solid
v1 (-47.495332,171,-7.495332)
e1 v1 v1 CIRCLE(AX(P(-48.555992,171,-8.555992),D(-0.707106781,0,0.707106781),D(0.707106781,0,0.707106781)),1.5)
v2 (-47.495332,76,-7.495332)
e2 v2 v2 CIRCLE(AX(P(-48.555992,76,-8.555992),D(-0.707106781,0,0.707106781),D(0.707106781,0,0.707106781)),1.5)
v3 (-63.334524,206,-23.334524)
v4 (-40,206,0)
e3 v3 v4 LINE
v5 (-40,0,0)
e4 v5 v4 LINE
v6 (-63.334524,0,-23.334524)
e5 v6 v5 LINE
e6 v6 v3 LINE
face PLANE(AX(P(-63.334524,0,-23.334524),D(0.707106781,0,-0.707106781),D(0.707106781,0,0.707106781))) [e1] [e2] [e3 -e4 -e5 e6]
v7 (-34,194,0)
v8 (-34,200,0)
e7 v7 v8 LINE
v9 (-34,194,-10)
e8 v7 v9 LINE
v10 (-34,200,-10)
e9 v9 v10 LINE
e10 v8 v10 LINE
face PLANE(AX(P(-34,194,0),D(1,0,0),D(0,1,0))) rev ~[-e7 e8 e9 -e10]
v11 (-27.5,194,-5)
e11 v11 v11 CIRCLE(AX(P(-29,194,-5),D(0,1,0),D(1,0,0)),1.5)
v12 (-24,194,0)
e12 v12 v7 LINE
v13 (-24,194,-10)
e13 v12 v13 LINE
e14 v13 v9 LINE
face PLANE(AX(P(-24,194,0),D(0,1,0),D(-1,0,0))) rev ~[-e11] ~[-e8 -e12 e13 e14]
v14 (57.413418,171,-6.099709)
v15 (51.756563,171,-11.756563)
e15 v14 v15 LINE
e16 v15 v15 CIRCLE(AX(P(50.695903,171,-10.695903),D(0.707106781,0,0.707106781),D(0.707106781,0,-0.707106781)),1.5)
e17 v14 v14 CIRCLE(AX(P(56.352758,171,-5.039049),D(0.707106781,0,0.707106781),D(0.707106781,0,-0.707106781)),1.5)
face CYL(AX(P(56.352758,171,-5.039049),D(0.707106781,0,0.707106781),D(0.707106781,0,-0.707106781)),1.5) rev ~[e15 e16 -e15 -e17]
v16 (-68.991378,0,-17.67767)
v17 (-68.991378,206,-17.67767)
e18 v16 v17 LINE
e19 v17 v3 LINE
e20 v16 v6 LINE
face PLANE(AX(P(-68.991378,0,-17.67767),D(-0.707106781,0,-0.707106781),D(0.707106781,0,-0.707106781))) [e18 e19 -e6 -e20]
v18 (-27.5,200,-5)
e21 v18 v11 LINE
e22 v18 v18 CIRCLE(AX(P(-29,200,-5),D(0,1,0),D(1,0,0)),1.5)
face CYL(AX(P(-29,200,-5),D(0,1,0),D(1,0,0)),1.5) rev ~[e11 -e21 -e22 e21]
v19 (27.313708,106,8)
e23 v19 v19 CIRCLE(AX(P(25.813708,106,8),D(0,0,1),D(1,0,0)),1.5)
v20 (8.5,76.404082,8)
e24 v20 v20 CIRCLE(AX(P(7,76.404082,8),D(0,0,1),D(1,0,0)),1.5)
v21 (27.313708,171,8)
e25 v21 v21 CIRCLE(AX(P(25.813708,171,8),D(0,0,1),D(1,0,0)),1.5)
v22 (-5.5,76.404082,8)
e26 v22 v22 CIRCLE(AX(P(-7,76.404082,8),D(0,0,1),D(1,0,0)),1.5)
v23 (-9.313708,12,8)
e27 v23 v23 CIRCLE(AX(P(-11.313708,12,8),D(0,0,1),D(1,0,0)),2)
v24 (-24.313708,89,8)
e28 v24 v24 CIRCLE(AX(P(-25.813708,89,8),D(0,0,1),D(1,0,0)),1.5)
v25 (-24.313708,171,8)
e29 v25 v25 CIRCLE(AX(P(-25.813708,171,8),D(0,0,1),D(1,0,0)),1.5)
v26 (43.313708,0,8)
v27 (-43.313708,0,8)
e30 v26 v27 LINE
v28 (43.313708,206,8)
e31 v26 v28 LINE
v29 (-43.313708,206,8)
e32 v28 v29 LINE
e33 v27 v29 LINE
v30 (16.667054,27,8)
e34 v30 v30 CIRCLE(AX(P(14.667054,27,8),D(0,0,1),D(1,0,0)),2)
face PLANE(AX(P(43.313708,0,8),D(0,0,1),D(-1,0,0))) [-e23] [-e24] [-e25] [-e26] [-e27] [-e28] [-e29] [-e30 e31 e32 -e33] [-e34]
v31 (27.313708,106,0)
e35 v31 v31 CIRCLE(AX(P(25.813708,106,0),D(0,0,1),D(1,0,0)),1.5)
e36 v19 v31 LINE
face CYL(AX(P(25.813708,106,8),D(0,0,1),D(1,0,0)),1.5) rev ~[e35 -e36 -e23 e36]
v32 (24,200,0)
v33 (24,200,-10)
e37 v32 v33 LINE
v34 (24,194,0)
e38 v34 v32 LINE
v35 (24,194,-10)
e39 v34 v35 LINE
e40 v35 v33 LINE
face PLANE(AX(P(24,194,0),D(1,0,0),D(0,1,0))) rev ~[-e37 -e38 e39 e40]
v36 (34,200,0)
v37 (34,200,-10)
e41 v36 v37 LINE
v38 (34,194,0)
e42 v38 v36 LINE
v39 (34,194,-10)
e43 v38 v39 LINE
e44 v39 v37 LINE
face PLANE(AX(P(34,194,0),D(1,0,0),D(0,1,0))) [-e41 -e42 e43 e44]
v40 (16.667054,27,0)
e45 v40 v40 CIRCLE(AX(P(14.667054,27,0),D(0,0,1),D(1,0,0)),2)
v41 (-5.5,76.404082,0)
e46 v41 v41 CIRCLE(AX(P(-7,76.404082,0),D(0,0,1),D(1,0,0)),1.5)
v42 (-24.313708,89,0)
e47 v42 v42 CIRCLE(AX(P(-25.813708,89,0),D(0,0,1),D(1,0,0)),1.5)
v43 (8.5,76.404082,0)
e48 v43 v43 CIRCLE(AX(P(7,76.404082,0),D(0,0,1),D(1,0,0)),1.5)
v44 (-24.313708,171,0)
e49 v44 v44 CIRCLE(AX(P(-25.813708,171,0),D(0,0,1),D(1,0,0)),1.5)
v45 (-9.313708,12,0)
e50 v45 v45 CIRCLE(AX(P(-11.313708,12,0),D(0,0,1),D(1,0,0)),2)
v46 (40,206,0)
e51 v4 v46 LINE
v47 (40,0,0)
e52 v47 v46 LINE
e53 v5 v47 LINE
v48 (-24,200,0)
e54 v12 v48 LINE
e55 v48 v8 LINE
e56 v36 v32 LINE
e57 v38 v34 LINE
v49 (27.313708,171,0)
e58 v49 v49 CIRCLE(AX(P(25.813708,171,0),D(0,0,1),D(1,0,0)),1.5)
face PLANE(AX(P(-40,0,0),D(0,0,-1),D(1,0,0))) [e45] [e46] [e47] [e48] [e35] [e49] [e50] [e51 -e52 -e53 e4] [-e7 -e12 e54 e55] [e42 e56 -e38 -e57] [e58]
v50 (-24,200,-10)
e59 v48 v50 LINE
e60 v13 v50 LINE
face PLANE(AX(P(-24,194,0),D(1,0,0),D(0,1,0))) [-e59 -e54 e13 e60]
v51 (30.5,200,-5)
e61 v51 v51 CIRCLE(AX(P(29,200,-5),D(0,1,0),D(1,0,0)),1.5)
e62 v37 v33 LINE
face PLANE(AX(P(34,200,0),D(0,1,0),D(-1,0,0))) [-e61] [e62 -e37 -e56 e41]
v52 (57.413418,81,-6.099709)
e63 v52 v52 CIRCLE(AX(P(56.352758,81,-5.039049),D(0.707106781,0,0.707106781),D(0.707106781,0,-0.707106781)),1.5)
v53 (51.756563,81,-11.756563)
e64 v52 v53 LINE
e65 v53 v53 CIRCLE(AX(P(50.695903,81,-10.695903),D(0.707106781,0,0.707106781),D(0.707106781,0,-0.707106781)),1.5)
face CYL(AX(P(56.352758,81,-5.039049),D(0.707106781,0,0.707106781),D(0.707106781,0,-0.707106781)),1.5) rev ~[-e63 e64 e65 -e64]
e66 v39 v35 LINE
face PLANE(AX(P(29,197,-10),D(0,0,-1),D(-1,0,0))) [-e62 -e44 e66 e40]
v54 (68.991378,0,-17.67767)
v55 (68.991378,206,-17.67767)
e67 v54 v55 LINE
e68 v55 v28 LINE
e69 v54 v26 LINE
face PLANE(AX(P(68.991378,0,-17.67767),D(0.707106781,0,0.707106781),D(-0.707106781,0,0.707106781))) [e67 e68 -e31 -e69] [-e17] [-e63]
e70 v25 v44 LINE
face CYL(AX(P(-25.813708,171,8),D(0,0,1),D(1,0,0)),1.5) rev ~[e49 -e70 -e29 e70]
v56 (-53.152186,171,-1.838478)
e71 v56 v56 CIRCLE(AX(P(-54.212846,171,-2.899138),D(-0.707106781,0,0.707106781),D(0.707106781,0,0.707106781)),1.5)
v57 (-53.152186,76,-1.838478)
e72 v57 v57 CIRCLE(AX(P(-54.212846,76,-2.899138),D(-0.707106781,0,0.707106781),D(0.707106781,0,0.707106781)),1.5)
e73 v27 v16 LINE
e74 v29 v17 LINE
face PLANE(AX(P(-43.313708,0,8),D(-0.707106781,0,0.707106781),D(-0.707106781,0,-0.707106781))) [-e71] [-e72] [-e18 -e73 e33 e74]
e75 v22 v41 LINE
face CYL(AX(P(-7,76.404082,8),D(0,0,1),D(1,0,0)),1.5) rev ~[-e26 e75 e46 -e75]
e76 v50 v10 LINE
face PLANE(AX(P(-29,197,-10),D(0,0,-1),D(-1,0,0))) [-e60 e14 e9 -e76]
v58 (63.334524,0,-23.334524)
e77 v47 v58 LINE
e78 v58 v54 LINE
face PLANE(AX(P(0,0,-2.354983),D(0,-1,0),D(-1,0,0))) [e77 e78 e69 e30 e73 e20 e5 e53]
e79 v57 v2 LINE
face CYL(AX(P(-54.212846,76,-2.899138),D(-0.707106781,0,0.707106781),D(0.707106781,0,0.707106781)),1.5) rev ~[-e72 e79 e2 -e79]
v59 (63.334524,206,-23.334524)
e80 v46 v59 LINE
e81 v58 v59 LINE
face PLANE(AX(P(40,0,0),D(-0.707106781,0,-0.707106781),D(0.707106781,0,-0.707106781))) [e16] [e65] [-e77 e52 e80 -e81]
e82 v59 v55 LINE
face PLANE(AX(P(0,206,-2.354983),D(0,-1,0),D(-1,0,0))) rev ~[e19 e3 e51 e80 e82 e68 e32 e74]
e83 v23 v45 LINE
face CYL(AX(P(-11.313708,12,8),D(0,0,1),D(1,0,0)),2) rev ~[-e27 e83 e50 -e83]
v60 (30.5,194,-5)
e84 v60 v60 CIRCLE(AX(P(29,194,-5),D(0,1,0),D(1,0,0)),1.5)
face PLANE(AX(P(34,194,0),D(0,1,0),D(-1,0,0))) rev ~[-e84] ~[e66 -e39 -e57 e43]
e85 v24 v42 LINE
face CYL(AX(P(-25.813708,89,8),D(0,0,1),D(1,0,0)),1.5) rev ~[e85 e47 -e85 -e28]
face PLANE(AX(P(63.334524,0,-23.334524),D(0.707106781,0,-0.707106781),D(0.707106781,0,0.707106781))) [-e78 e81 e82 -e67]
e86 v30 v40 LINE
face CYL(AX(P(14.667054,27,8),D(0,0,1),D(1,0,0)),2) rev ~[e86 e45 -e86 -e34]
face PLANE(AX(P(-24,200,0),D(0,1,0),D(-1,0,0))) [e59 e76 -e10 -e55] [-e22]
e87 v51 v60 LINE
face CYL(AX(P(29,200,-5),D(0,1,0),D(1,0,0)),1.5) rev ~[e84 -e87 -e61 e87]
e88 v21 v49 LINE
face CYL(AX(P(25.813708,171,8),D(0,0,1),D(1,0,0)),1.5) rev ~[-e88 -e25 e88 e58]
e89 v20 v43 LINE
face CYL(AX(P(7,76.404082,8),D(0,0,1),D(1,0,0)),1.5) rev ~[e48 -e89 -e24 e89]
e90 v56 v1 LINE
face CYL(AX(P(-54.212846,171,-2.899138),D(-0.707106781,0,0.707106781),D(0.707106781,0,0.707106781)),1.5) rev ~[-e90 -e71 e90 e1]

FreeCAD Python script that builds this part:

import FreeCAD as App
import Part
import Sketcher

V = App.Vector

doc = App.newDocument("Part")
body = doc.addObject("PartDesign::Body", "Body")

sketch1 = body.newObject("Sketcher::SketchObject", "Sketch")
sketch1.AttachmentSupport = (doc.getObject("XZ_Plane"), [""])
sketch1.MapMode = "FlatFace"
sketch1.addGeometry([
    Part.LineSegment(V(40, 0, 0), V(-40, 0, 0)),
    Part.LineSegment(V(-40, 0, 0), V(-63, -23, 0)),
    Part.LineSegment(V(-63, -23, 0), V(-69, -18, 0)),
    Part.LineSegment(V(-69, -18, 0), V(-43, 8, 0)),
    Part.LineSegment(V(-43, 8, 0), V(43, 8, 0)),
    Part.LineSegment(V(43, 8, 0), V(69, -18, 0)),
    Part.LineSegment(V(69, -18, 0), V(63, -23, 0)),
    Part.LineSegment(V(63, -23, 0), V(40, 0, 0)),
], False)
sketch1.addConstraint([
    Sketcher.Constraint("Coincident", 0, 2, 1, 1),
    Sketcher.Constraint("Coincident", 1, 2, 2, 1),
    Sketcher.Constraint("Coincident", 2, 2, 3, 1),
    Sketcher.Constraint("Coincident", 3, 2, 4, 1),
    Sketcher.Constraint("Coincident", 4, 2, 5, 1),
    Sketcher.Constraint("Coincident", 5, 2, 6, 1),
    Sketcher.Constraint("Coincident", 6, 2, 7, 1),
    Sketcher.Constraint("Coincident", 7, 2, 0, 1),
    Sketcher.Constraint("Horizontal", 0),
    Sketcher.Constraint("Horizontal", 4),
    Sketcher.Constraint("Symmetric", 0, 2, 7, 2, -1, 1),
    Sketcher.Constraint("Symmetric", 2, 2, 5, 2, -2),
    Sketcher.Constraint("Symmetric", 1, 2, 6, 2, -2),
    Sketcher.Constraint("Perpendicular", 1, 2),
    Sketcher.Constraint("Perpendicular", 2, 3),
    Sketcher.Constraint("Perpendicular", 3, 5),
    Sketcher.Constraint("Perpendicular", 5, 6),
    Sketcher.Constraint("DistanceX", 0, 2, 0, 1, 80.0),
    Sketcher.Constraint("Distance", 1, 33.0),
    Sketcher.Constraint("Distance", 2, 8.0),
    Sketcher.Constraint("DistanceY", -1, 1, 3, 2, 8.0),
])
pad1 = body.newObject("PartDesign::Pad", "Pad")
pad1.Profile = sketch1
pad1.Length = 206
pad1.Reversed = True

sketch2 = body.newObject("Sketcher::SketchObject", "Sketch001")
sketch2.AttachmentSupport = (doc.getObject("XY_Plane"), [""])
sketch2.MapMode = "FlatFace"
sketch2.addGeometry([
    Part.LineSegment(V(34, 200, 0), V(34, 194, 0)),
    Part.LineSegment(V(34, 194, 0), V(24, 194, 0)),
    Part.LineSegment(V(24, 194, 0), V(24, 200, 0)),
    Part.LineSegment(V(24, 200, 0), V(34, 200, 0)),
    Part.LineSegment(V(-24, 200, 0), V(-24, 194, 0)),
    Part.LineSegment(V(-24, 194, 0), V(-34, 194, 0)),
    Part.LineSegment(V(-34, 194, 0), V(-34, 200, 0)),
    Part.LineSegment(V(-34, 200, 0), V(-24, 200, 0)),
], False)
sketch2.addConstraint([
    Sketcher.Constraint("Coincident", 0, 2, 1, 1),
    Sketcher.Constraint("Coincident", 1, 2, 2, 1),
    Sketcher.Constraint("Coincident", 2, 2, 3, 1),
    Sketcher.Constraint("Coincident", 3, 2, 0, 1),
    Sketcher.Constraint("Coincident", 4, 2, 5, 1),
    Sketcher.Constraint("Coincident", 5, 2, 6, 1),
    Sketcher.Constraint("Coincident", 6, 2, 7, 1),
    Sketcher.Constraint("Coincident", 7, 2, 4, 1),
    Sketcher.Constraint("Vertical", 0),
    Sketcher.Constraint("Horizontal", 1),
    Sketcher.Constraint("Vertical", 2),
    Sketcher.Constraint("Horizontal", 3),
    Sketcher.Constraint("Vertical", 4),
    Sketcher.Constraint("Horizontal", 5),
    Sketcher.Constraint("Vertical", 6),
    Sketcher.Constraint("Horizontal", 7),
    Sketcher.Constraint("Symmetric", 1, 2, 4, 2, -2),
    Sketcher.Constraint("Symmetric", 3, 2, 6, 2, -2),
    Sketcher.Constraint("DistanceX", 1, 2, 1, 1, 10.0),
    Sketcher.Constraint("DistanceY", 0, 2, 0, 1, 6.0),
    Sketcher.Constraint("DistanceX", -1, 1, 0, 2, 34.0),
    Sketcher.Constraint("DistanceY", -1, 1, 0, 2, 194.0),
])
pad2 = body.newObject("PartDesign::Pad", "Pad001")
pad2.Profile = sketch2
pad2.Length = 10
pad2.Reversed = True

sketch3 = body.newObject("Sketcher::SketchObject", "Sketch002")
sketch3.AttachmentSupport = (doc.getObject("XZ_Plane"), [""])
sketch3.MapMode = "FlatFace"
sketch3.AttachmentOffset = App.Placement(V(0, 0, -200), App.Rotation())
sketch3.addGeometry(Part.Circle(V(-29, -5, 0), V(0, 0, 1), 1.5), False)
sketch3.addConstraint([
    Sketcher.Constraint("Diameter", 0, 3.0),
    Sketcher.Constraint("DistanceX", 0, 3, -1, 1, 29.0),
    Sketcher.Constraint("DistanceY", 0, 3, -1, 1, 5.0),
])
pocket1 = body.newObject("PartDesign::Pocket", "Pocket")
pocket1.Profile = sketch3
pocket1.Type = "UpToFirst"
pocket1.Reversed = True

sketch4 = body.newObject("Sketcher::SketchObject", "Sketch003")
sketch4.AttachmentSupport = (doc.getObject("XZ_Plane"), [""])
sketch4.MapMode = "FlatFace"
sketch4.AttachmentOffset = App.Placement(V(0, 0, -200), App.Rotation())
sketch4.addGeometry(Part.Circle(V(29, -5, 0), V(0, 0, 1), 1.5), False)
sketch4.addConstraint([
    Sketcher.Constraint("Diameter", 0, 3.0),
    Sketcher.Constraint("DistanceX", -1, 1, 0, 3, 29.0),
    Sketcher.Constraint("DistanceY", 0, 3, -1, 1, 5.0),
])
pocket2 = body.newObject("PartDesign::Pocket", "Pocket001")
pocket2.Profile = sketch4
pocket2.Type = "UpToFirst"
pocket2.Reversed = True

sketch5 = body.newObject("Sketcher::SketchObject", "Sketch004")
sketch5.AttachmentSupport = (doc.getObject("XY_Plane"), [""])
sketch5.MapMode = "FlatFace"
sketch5.AttachmentOffset = App.Placement(V(0, 0, 8), App.Rotation())
sketch5.addGeometry(Part.Circle(V(-11.3, 12, 0), V(0, 0, 1), 2), False)
sketch5.addConstraint([
    Sketcher.Constraint("Diameter", 0, 4.0),
    Sketcher.Constraint("DistanceY", -1, 1, 0, 3, 12.0),
    Sketcher.Constraint("DistanceX", 0, 3, -1, 1, 11.313708),
])
pocket3 = body.newObject("PartDesign::Pocket", "Pocket002")
pocket3.Profile = sketch5
pocket3.Type = "UpToFirst"

sketch6 = body.newObject("Sketcher::SketchObject", "Sketch005")
sketch6.AttachmentSupport = (doc.getObject("XY_Plane"), [""])
sketch6.MapMode = "FlatFace"
sketch6.AttachmentOffset = App.Placement(V(0, 0, 8), App.Rotation())
sketch6.addGeometry(Part.Circle(V(14.7, 27, 0), V(0, 0, 1), 2), False)
sketch6.addConstraint([
    Sketcher.Constraint("Diameter", 0, 4.0),
    Sketcher.Constraint("DistanceY", -1, 1, 0, 3, 27.0),
    Sketcher.Constraint("DistanceX", -1, 1, 0, 3, 14.667054),
])
pocket4 = body.newObject("PartDesign::Pocket", "Pocket003")
pocket4.Profile = sketch6
pocket4.Type = "UpToFirst"

sketch7 = body.newObject("Sketcher::SketchObject", "Sketch006")
sketch7.AttachmentSupport = (doc.getObject("XY_Plane"), [""])
sketch7.MapMode = "FlatFace"
sketch7.AttachmentOffset = App.Placement(V(0, 0, 8), App.Rotation())
sketch7.addGeometry(Part.Circle(V(7, 76.4, 0), V(0, 0, 1), 1.5), False)
sketch7.addConstraint([
    Sketcher.Constraint("Diameter", 0, 3.0),
    Sketcher.Constraint("DistanceX", -1, 1, 0, 3, 7.0),
    Sketcher.Constraint("DistanceY", -1, 1, 0, 3, 76.404082),
])
pocket5 = body.newObject("PartDesign::Pocket", "Pocket004")
pocket5.Profile = sketch7
pocket5.Type = "UpToFirst"

sketch8 = body.newObject("Sketcher::SketchObject", "Sketch007")
sketch8.AttachmentSupport = (doc.getObject("XY_Plane"), [""])
sketch8.MapMode = "FlatFace"
sketch8.AttachmentOffset = App.Placement(V(0, 0, 8), App.Rotation())
sketch8.addGeometry(Part.Circle(V(-7, 76.4, 0), V(0, 0, 1), 1.5), False)
sketch8.addConstraint([
    Sketcher.Constraint("Diameter", 0, 3.0),
    Sketcher.Constraint("DistanceX", 0, 3, -1, 1, 7.0),
    Sketcher.Constraint("DistanceY", -1, 1, 0, 3, 76.404082),
])
pocket6 = body.newObject("PartDesign::Pocket", "Pocket005")
pocket6.Profile = sketch8
pocket6.Type = "UpToFirst"

sketch9 = body.newObject("Sketcher::SketchObject", "Sketch008")
sketch9.AttachmentSupport = (doc.getObject("XY_Plane"), [""])
sketch9.MapMode = "FlatFace"
sketch9.AttachmentOffset = App.Placement(V(0, 0, 8), App.Rotation())
sketch9.addGeometry(Part.Circle(V(25.8, 171, 0), V(0, 0, 1), 1.5), False)
sketch9.addConstraint([
    Sketcher.Constraint("Diameter", 0, 3.0),
    Sketcher.Constraint("DistanceY", -1, 1, 0, 3, 171.0),
    Sketcher.Constraint("DistanceX", -1, 1, 0, 3, 25.813708),
])
pocket7 = body.newObject("PartDesign::Pocket", "Pocket006")
pocket7.Profile = sketch9
pocket7.Type = "UpToFirst"

sketch10 = body.newObject("Sketcher::SketchObject", "Sketch009")
sketch10.AttachmentSupport = (doc.getObject("XY_Plane"), [""])
sketch10.MapMode = "FlatFace"
sketch10.AttachmentOffset = App.Placement(V(0, 0, 8), App.Rotation())
sketch10.addGeometry(Part.Circle(V(-25.8, 171, 0), V(0, 0, 1), 1.5), False)
sketch10.addConstraint([
    Sketcher.Constraint("Diameter", 0, 3.0),
    Sketcher.Constraint("DistanceY", -1, 1, 0, 3, 171.0),
    Sketcher.Constraint("DistanceX", 0, 3, -1, 1, 25.813708),
])
pocket8 = body.newObject("PartDesign::Pocket", "Pocket007")
pocket8.Profile = sketch10
pocket8.Type = "UpToFirst"

sketch11 = body.newObject("Sketcher::SketchObject", "Sketch010")
sketch11.AttachmentSupport = (doc.getObject("XY_Plane"), [""])
sketch11.MapMode = "FlatFace"
sketch11.AttachmentOffset = App.Placement(V(0, 0, 8), App.Rotation())
sketch11.addGeometry(Part.Circle(V(25.8, 106, 0), V(0, 0, 1), 1.5), False)
sketch11.addConstraint([
    Sketcher.Constraint("Diameter", 0, 3.0),
    Sketcher.Constraint("DistanceY", -1, 1, 0, 3, 106.0),
    Sketcher.Constraint("DistanceX", -1, 1, 0, 3, 25.813708),
])
pocket9 = body.newObject("PartDesign::Pocket", "Pocket008")
pocket9.Profile = sketch11
pocket9.Type = "UpToFirst"

sketch12 = body.newObject("Sketcher::SketchObject", "Sketch011")
sketch12.AttachmentSupport = (doc.getObject("XY_Plane"), [""])
sketch12.MapMode = "FlatFace"
sketch12.AttachmentOffset = App.Placement(V(0, 0, 8), App.Rotation())
sketch12.addGeometry(Part.Circle(V(-25.8, 89, 0), V(0, 0, 1), 1.5), False)
sketch12.addConstraint([
    Sketcher.Constraint("Diameter", 0, 3.0),
    Sketcher.Constraint("DistanceY", -1, 1, 0, 3, 89.0),
    Sketcher.Constraint("DistanceX", 0, 3, -1, 1, 25.813708),
])
pocket10 = body.newObject("PartDesign::Pocket", "Pocket009")
pocket10.Profile = sketch12
pocket10.Type = "UpToFirst"

sketch13 = body.newObject("Sketcher::SketchObject", "Sketch012")
sketch13.Placement = App.Placement(V(25.656854, 0, 25.656854), App.Rotation(V(0.707106781, 0, -0.707106781), V(0, 0.999999999, 0), V(0.707106781, 0, 0.707106781), "ZXY"))
sketch13.addGeometry(Part.Circle(V(43.4, 171, 0), V(0, 0, 1), 1.5), False)
sketch13.addConstraint([
    Sketcher.Constraint("Diameter", 0, 3.0),
    Sketcher.Constraint("DistanceY", -1, 1, 0, 3, 171.0),
    Sketcher.Constraint("DistanceX", -1, 1, 0, 3, 43.410563),
])
pocket11 = body.newObject("PartDesign::Pocket", "Pocket010")
pocket11.Profile = sketch13
pocket11.Type = "UpToFirst"

sketch14 = body.newObject("Sketcher::SketchObject", "Sketch013")
sketch14.Placement = App.Placement(V(25.656854, 0, 25.656854), App.Rotation(V(0.707106781, 0, -0.707106781), V(0, 0.999999999, 0), V(0.707106781, 0, 0.707106781), "ZXY"))
sketch14.addGeometry(Part.Circle(V(43.4, 81, 0), V(0, 0, 1), 1.5), False)
sketch14.addConstraint([
    Sketcher.Constraint("Diameter", 0, 3.0),
    Sketcher.Constraint("DistanceY", -1, 1, 0, 3, 81.0),
    Sketcher.Constraint("DistanceX", -1, 1, 0, 3, 43.410563),
])
pocket12 = body.newObject("PartDesign::Pocket", "Pocket011")
pocket12.Profile = sketch14
pocket12.Type = "UpToFirst"

sketch15 = body.newObject("Sketcher::SketchObject", "Sketch014")
sketch15.Placement = App.Placement(V(25.656854, 0, 25.656854), App.Rotation(V(0.707106781, 0, -0.707106781), V(0, 0.999999999, 0), V(0.707106781, 0, 0.707106781), "ZXY"))
sketch15.addGeometry([
    Part.Circle(V(43.4, 171, 0), V(0, 0, 1), 1.5),
    Part.Circle(V(43.4, 81, 0), V(0, 0, 1), 1.5),
], False)
sketch15.addConstraint([
    Sketcher.Constraint("Equal", 0, 1),
    Sketcher.Constraint("Vertical", 0, 3, 1, 3),
    Sketcher.Constraint("Diameter", 0, 3.0),
    Sketcher.Constraint("DistanceY", -1, 1, 0, 3, 171.0),
    Sketcher.Constraint("DistanceY", -1, 1, 1, 3, 81.0),
    Sketcher.Constraint("DistanceX", -1, 1, 0, 3, 43.410563),
])
pocket13 = body.newObject("PartDesign::Pocket", "Pocket012")
pocket13.Profile = sketch15
pocket13.Length = 19.156854
pocket13.Reversed = True

sketch16 = body.newObject("Sketcher::SketchObject", "Sketch015")
sketch16.Placement = App.Placement(V(-25.656854, 0, 25.656854), App.Rotation(V(0.707106781, 0, 0.707106781), V(0, 0.999999999, 0), V(-0.707106781, 0, 0.707106781), "ZXY"))
sketch16.addGeometry(Part.Circle(V(-40.4, 171, 0), V(0, 0, 1), 1.5), False)
sketch16.addConstraint([
    Sketcher.Constraint("Diameter", 0, 3.0),
    Sketcher.Constraint("DistanceY", -1, 1, 0, 3, 171.0),
    Sketcher.Constraint("DistanceX", 0, 3, -1, 1, 40.384271),
])
pocket14 = body.newObject("PartDesign::Pocket", "Pocket013")
pocket14.Profile = sketch16
pocket14.Type = "UpToFirst"

sketch17 = body.newObject("Sketcher::SketchObject", "Sketch016")
sketch17.Placement = App.Placement(V(-25.656854, 0, 25.656854), App.Rotation(V(0.707106781, 0, 0.707106781), V(0, 0.999999999, 0), V(-0.707106781, 0, 0.707106781), "ZXY"))
sketch17.addGeometry(Part.Circle(V(-40.4, 76, 0), V(0, 0, 1), 1.5), False)
sketch17.addConstraint([
    Sketcher.Constraint("Diameter", 0, 3.0),
    Sketcher.Constraint("DistanceY", -1, 1, 0, 3, 76.0),
    Sketcher.Constraint("DistanceX", 0, 3, -1, 1, 40.384271),
])
pocket15 = body.newObject("PartDesign::Pocket", "Pocket014")
pocket15.Profile = sketch17
pocket15.Type = "UpToFirst"

doc.recompute()
